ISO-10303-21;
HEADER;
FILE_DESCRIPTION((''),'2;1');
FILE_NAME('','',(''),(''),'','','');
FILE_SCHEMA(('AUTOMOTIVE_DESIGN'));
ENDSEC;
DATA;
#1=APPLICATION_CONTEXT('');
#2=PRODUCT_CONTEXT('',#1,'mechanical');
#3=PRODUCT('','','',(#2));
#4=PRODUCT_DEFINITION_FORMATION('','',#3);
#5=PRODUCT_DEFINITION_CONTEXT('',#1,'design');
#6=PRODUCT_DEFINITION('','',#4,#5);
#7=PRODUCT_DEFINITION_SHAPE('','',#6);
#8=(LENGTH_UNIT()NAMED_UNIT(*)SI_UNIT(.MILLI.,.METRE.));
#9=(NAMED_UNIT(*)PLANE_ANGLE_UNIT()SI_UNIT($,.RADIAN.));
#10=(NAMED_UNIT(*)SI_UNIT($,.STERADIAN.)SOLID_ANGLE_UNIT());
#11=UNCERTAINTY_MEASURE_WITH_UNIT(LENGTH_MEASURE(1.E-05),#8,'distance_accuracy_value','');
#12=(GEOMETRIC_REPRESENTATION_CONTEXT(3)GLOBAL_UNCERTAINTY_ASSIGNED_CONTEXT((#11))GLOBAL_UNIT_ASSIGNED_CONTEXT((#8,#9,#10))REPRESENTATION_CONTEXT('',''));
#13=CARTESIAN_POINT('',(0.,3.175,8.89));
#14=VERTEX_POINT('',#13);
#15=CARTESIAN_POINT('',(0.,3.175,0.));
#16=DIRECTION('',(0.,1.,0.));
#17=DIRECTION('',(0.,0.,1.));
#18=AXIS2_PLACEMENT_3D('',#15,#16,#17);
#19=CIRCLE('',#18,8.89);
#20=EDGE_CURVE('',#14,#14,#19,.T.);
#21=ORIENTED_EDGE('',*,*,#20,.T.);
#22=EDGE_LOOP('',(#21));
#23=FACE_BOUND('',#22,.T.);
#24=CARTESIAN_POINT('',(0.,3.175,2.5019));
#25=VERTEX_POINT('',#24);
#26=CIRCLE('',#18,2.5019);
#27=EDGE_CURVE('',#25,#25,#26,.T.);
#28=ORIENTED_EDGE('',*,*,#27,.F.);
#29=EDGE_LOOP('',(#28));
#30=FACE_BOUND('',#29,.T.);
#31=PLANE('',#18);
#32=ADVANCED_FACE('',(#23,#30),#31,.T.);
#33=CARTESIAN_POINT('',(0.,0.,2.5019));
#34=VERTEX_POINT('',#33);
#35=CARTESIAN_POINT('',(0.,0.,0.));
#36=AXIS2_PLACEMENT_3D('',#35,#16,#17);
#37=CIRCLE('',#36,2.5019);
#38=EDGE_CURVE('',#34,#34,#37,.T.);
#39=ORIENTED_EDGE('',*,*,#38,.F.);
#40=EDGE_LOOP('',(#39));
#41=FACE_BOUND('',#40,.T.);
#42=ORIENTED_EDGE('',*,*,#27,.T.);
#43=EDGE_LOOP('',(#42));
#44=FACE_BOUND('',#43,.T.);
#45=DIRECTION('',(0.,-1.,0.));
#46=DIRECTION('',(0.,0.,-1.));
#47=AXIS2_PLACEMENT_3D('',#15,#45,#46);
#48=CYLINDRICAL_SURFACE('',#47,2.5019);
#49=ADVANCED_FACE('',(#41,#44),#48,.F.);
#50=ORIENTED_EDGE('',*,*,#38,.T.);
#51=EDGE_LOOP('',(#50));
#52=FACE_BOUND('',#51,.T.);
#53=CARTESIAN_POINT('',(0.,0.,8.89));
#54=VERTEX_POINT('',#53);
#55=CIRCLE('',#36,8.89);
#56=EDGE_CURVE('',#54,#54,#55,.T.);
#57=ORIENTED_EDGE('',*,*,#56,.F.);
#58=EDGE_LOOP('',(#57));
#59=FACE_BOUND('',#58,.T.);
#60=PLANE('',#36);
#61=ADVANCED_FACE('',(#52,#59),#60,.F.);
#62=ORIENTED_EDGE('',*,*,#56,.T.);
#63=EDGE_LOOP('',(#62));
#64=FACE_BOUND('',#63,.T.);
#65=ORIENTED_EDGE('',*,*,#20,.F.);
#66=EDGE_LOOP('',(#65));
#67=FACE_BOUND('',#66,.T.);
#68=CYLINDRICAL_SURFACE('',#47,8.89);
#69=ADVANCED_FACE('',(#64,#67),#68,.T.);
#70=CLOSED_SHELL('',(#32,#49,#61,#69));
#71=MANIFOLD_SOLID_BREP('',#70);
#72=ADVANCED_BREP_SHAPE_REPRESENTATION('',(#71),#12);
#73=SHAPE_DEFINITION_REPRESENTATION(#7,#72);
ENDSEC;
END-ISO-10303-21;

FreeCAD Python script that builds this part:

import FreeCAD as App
import Part
import Sketcher
from FreeCAD import Vector
Q = App.Units.Quantity

doc = App.newDocument("Part")
body = doc.addObject("PartDesign::Body", "Body")

sketch1 = body.newObject("Sketcher::SketchObject", "Sketch")
sketch1.AttachmentSupport = (doc.getObject("XZ_Plane"), [""])
sketch1.MapMode = "FlatFace"
sketch1.addGeometry([
    Part.Circle(Vector(0, 0, 0), Vector(0, 0, 1), 8.9),
    Part.Circle(Vector(0, 0, 0), Vector(0, 0, 1), 2.5),
], False)
sketch1.addConstraint([
    Sketcher.Constraint("Coincident", 0, 3, -1, 1),
    Sketcher.Constraint("Coincident", 1, 3, -1, 1),
    Sketcher.Constraint("Diameter", 0, Q("0.7 in")),
    Sketcher.Constraint("Diameter", 1, Q("0.197 in")),
])
pad1 = body.newObject("PartDesign::Pad", "Pad")
pad1.Profile = sketch1
pad1.Length = Q("0.125 in")
pad1.Reversed = True

doc.recompute()
